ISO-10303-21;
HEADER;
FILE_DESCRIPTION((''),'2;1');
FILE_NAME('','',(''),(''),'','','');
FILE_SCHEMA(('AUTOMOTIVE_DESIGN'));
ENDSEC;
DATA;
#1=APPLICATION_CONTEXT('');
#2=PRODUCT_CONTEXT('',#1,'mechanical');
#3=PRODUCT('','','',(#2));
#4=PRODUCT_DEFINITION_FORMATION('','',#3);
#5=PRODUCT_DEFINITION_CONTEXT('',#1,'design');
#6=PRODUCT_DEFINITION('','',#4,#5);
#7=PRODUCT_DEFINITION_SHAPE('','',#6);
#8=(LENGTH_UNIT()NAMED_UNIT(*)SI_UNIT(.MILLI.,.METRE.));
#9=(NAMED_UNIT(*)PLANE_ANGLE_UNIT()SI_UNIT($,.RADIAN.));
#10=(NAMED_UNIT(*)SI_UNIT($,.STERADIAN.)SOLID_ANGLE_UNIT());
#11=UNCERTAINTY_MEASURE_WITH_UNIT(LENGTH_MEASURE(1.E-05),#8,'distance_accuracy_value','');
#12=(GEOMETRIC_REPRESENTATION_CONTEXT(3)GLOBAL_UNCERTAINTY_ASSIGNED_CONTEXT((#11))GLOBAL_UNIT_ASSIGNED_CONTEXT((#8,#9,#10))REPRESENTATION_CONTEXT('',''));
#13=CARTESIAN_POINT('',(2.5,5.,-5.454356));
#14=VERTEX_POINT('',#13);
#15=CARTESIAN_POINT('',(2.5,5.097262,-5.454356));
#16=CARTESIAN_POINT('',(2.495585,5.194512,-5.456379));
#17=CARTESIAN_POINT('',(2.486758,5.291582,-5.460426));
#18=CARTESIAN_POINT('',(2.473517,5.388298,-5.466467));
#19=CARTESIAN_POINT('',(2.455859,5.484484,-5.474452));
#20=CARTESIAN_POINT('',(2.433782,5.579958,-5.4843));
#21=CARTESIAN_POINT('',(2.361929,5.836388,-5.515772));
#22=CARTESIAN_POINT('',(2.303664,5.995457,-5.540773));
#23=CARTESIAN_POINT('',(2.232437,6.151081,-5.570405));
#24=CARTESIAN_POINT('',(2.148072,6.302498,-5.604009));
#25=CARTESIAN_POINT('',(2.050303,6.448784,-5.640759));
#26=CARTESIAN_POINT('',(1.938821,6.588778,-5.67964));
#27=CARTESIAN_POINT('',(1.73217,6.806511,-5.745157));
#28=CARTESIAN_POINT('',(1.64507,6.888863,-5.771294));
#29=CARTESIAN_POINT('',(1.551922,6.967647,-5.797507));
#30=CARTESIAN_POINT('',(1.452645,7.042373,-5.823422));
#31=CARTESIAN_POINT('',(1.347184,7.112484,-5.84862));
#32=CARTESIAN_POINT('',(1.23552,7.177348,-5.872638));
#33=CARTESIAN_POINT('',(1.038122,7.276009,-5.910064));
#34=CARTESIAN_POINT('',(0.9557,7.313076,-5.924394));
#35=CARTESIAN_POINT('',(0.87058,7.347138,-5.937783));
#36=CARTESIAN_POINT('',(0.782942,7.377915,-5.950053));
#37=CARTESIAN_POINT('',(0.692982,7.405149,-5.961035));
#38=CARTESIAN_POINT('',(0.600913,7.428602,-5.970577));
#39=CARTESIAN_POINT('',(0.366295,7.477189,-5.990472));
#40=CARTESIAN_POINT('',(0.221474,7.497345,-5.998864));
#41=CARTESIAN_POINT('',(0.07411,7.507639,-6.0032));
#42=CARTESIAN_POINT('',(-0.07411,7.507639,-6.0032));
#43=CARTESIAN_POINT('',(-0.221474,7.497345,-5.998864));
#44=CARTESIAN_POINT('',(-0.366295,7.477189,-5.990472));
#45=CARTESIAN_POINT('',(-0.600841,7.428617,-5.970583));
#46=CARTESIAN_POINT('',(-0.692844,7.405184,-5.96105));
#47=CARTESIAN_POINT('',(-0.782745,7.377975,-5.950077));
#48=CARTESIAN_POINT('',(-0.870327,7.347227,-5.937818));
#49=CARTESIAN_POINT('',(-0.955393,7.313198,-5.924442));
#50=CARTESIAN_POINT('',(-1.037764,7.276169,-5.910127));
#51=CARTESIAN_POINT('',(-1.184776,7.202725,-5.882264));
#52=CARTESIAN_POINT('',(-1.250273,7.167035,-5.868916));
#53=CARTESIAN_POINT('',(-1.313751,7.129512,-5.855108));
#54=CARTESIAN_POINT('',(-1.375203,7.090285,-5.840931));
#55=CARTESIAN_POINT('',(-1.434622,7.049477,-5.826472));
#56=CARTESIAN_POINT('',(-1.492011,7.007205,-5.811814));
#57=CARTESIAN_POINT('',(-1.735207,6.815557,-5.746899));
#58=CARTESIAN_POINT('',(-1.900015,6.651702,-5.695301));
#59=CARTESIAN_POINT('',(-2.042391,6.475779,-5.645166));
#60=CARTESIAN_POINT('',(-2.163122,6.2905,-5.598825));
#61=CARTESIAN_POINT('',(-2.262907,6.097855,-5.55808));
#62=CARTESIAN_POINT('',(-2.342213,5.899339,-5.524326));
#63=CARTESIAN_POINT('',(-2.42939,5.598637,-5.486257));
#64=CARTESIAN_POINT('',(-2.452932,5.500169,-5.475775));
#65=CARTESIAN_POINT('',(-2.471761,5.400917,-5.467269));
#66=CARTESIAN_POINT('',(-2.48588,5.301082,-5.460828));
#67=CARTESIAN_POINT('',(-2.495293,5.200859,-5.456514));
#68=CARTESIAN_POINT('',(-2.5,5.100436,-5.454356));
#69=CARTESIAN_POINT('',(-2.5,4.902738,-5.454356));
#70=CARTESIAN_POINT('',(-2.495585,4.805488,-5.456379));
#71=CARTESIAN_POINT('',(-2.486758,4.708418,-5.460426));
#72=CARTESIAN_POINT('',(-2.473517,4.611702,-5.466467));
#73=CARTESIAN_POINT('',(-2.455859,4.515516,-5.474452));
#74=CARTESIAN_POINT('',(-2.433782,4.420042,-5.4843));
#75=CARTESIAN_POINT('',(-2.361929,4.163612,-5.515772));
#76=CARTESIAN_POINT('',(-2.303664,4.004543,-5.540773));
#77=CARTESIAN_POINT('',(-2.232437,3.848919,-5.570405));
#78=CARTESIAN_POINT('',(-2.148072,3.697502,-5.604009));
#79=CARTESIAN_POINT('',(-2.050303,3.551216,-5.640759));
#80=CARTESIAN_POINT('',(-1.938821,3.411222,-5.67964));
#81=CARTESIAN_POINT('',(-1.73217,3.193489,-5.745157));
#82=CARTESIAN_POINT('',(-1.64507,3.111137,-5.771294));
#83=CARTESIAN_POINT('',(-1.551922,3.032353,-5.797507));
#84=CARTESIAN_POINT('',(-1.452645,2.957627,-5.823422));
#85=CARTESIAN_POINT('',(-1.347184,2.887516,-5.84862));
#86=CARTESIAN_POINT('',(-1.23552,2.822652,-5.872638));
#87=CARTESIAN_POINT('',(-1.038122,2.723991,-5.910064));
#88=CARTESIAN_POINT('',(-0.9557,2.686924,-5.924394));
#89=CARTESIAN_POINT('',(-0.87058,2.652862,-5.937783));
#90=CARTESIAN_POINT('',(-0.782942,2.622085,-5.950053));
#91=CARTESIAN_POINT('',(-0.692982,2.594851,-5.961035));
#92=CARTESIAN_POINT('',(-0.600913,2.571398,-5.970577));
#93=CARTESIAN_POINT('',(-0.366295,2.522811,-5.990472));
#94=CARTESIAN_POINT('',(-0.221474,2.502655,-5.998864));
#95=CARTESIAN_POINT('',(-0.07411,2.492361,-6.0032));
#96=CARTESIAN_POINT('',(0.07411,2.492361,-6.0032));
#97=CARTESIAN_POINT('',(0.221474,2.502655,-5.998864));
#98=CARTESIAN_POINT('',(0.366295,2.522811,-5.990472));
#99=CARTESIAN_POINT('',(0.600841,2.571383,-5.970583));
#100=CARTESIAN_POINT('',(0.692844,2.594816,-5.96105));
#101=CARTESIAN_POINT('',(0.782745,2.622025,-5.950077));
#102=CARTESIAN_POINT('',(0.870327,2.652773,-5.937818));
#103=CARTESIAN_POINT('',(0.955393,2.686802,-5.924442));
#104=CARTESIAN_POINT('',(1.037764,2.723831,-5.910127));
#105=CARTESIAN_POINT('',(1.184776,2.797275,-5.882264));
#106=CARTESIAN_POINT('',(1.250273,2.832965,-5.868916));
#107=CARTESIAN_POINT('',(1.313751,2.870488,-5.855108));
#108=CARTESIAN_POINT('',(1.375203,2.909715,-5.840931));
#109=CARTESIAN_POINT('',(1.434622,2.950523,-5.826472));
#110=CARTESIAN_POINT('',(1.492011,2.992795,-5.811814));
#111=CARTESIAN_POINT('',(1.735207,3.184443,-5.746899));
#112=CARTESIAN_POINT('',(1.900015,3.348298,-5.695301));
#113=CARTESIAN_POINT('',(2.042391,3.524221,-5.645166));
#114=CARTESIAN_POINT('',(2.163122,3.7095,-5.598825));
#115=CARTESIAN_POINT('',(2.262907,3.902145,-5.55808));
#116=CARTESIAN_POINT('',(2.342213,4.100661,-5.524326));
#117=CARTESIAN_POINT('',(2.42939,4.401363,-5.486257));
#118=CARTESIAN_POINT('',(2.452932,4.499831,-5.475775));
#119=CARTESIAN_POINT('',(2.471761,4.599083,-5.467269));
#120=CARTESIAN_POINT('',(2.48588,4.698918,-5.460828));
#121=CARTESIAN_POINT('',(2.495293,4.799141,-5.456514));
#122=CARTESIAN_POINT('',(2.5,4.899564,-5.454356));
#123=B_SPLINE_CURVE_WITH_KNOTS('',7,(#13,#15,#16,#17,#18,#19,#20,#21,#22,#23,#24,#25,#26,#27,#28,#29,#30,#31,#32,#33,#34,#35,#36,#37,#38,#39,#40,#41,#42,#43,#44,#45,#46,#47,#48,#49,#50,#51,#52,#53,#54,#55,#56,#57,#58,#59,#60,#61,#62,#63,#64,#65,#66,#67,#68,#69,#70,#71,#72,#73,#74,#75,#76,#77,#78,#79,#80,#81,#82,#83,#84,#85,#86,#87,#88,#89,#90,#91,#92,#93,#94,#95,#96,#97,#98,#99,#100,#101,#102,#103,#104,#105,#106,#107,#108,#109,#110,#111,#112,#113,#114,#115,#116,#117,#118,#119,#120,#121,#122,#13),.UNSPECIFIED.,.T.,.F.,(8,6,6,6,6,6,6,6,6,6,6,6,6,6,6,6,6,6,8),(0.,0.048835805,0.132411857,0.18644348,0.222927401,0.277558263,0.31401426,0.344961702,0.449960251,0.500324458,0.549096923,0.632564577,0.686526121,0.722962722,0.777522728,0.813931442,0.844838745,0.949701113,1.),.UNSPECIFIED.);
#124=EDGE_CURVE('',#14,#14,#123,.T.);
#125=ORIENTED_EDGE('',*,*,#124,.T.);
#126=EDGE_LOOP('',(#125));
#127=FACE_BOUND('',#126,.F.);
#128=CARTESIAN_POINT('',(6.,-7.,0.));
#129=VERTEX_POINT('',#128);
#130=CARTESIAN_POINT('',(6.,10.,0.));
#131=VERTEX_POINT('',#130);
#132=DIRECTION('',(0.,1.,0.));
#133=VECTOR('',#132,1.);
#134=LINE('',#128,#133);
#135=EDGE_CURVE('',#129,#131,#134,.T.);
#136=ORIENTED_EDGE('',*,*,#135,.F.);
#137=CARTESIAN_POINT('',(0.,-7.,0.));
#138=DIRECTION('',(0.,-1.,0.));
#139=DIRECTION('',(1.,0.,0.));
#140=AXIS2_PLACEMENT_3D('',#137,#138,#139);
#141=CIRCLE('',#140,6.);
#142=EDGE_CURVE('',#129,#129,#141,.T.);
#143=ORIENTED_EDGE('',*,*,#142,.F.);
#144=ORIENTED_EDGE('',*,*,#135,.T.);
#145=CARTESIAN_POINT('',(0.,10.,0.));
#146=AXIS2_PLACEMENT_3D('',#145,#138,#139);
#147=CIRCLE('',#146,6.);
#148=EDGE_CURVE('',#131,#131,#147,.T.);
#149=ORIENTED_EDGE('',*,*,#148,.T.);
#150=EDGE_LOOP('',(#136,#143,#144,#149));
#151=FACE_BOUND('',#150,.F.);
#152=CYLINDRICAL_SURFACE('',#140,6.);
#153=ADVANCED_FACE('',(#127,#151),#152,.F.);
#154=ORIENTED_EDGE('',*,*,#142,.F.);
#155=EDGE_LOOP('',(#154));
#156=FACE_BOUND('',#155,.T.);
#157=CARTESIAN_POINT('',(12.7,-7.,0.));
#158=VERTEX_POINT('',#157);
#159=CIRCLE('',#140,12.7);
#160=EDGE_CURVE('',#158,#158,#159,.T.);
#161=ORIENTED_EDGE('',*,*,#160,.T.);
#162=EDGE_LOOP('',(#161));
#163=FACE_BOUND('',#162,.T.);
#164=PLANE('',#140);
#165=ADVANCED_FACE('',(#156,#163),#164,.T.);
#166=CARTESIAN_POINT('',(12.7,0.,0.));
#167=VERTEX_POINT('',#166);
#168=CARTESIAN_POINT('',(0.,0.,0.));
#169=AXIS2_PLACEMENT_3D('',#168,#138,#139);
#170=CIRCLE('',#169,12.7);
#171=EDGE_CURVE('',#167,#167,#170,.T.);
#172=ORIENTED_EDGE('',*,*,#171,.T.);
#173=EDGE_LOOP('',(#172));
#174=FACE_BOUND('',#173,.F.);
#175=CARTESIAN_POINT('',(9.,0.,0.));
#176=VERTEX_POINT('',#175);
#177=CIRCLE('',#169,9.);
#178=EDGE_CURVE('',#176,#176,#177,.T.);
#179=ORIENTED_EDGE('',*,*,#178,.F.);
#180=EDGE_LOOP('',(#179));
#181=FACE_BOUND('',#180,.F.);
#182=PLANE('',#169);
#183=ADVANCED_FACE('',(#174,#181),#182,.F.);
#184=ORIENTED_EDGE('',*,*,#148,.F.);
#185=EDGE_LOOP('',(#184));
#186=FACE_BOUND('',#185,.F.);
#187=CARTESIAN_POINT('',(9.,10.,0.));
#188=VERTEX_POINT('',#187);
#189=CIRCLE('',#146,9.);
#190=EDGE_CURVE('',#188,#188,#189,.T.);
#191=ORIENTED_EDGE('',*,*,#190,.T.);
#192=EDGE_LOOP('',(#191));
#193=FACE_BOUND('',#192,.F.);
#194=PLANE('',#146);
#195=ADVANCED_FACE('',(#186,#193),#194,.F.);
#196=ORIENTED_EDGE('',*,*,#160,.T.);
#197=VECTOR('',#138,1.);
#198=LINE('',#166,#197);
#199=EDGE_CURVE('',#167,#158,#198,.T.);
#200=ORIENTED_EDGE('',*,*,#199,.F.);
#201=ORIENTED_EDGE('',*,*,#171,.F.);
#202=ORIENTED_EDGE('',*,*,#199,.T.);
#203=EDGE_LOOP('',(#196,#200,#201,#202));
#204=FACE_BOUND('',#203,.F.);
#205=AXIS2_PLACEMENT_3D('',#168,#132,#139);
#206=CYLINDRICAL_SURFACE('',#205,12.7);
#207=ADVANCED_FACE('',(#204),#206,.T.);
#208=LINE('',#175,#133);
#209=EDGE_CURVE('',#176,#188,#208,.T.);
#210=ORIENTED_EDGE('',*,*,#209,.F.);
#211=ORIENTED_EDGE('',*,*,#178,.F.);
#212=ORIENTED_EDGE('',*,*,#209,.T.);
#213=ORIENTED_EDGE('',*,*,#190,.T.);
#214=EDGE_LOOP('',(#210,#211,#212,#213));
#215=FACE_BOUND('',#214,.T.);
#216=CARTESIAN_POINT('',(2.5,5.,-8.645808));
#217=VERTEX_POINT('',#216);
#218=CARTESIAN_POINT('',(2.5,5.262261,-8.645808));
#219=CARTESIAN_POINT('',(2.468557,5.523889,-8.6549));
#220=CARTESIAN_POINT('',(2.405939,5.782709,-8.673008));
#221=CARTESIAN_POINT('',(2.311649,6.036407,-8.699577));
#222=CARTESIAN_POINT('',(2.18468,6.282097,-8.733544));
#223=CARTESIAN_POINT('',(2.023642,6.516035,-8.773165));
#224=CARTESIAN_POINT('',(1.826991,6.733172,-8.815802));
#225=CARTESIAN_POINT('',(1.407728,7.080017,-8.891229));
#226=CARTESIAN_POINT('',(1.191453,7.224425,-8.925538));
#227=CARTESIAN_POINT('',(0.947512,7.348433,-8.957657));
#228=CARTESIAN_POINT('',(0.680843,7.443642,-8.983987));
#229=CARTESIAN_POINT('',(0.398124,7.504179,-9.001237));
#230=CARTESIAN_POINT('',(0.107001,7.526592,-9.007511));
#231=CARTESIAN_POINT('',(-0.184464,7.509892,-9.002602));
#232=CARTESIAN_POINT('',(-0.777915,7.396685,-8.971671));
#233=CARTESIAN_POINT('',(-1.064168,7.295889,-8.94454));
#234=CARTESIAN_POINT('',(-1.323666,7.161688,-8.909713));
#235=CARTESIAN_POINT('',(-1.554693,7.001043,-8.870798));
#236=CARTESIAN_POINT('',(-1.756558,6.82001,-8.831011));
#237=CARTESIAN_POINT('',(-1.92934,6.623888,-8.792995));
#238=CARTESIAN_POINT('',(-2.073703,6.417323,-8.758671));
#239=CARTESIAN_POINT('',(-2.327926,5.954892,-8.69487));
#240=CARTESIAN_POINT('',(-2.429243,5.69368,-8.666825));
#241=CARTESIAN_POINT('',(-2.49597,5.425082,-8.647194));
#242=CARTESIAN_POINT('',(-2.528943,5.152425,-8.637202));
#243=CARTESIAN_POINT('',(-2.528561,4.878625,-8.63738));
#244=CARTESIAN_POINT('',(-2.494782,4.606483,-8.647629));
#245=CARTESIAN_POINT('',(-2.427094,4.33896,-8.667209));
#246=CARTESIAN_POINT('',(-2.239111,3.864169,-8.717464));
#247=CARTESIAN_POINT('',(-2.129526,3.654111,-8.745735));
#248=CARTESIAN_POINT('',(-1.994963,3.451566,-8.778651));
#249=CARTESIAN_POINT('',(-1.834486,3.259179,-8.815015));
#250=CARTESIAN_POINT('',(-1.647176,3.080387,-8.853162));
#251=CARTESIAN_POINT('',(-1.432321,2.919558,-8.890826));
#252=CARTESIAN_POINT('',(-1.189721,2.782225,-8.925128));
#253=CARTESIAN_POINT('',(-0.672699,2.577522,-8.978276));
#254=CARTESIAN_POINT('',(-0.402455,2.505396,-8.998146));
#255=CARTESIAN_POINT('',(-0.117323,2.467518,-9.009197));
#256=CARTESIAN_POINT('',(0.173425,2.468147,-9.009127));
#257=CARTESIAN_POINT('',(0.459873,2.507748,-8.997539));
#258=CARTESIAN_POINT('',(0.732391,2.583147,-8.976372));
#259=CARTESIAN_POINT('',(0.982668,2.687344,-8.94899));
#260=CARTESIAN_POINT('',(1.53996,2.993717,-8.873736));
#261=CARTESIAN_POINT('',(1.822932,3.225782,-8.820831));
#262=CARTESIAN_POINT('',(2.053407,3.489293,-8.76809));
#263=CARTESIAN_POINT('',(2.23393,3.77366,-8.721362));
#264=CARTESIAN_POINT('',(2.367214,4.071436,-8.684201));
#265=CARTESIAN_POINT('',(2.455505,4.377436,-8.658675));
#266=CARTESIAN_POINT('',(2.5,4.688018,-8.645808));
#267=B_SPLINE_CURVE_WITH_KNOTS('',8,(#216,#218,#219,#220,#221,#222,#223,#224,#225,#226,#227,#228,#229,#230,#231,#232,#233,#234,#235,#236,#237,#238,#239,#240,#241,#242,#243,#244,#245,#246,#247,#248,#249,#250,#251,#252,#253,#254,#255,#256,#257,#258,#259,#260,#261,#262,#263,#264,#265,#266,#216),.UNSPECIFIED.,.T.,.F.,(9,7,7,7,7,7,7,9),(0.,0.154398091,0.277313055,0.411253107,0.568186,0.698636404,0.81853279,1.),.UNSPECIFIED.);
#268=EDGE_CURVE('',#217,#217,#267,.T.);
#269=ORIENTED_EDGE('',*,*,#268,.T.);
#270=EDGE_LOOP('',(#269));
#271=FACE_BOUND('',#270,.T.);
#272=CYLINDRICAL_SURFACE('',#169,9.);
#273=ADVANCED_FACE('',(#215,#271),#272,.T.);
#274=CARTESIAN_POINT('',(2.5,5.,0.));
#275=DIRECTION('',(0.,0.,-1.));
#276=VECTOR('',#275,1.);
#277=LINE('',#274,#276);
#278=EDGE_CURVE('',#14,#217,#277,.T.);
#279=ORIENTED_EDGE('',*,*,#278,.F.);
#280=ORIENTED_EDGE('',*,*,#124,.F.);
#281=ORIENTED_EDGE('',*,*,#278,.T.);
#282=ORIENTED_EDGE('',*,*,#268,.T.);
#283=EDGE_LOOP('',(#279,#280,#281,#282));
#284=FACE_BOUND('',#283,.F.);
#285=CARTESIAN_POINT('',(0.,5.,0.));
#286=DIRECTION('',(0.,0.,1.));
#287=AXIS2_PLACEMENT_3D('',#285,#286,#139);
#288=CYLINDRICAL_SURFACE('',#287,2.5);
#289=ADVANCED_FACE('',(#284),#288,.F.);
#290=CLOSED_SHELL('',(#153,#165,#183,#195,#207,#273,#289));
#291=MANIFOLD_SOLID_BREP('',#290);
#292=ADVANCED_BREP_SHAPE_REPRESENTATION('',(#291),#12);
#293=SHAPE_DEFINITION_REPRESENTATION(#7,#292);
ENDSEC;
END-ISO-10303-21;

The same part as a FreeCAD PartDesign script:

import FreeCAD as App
import Part
import Sketcher
from FreeCAD import Vector
Q = App.Units.Quantity

doc = App.newDocument("Part")
params = doc.addObject("Spreadsheet::Sheet", "Params")
for row, (alias, value) in enumerate([
    ("sketch1_diameter", "25.4 mm"),
    ("pad1_length", "7 mm"),
    ("sketch2_diameter", "18 mm"),
    ("pad2_length", "10 mm"),
    ("sketch3_diameter", "12 mm"),
    ("sketch4_diameter", "5 mm"),
], start=1):
    params.set(f"A{row}", alias)
    params.set(f"B{row}", "=" + value)
    params.setAlias(f"B{row}", alias)

body = doc.addObject("PartDesign::Body", "Body")

sketch1 = body.newObject("Sketcher::SketchObject", "Sketch")
sketch1.AttachmentSupport = (doc.getObject("XZ_Plane"), [""])
sketch1.MapMode = "FlatFace"
sketch1.addGeometry(Part.Circle(Vector(0, 0, 0), Vector(0, 0, 1), 13), False)
sketch1.addConstraint(Sketcher.Constraint("Coincident", 0, 3, -1, 1))
sketch1.addConstraint(Sketcher.Constraint("Diameter", 0, Q("25.4 mm")))
sketch1.setExpression("Constraints[1]", "Params.sketch1_diameter")
pad1 = body.newObject("PartDesign::Pad", "Pad")
pad1.Profile = sketch1
pad1.setExpression("Length", "Params.pad1_length")

sketch2 = body.newObject("Sketcher::SketchObject", "Sketch001")
sketch2.AttachmentSupport = (doc.getObject("XZ_Plane"), [""])
sketch2.MapMode = "FlatFace"
sketch2.addGeometry(Part.Circle(Vector(0, 0, 0), Vector(0, 0, 1), 9), False)
sketch2.addConstraint(Sketcher.Constraint("Coincident", 0, 3, -1, 1))
sketch2.addConstraint(Sketcher.Constraint("Diameter", 0, Q("18 mm")))
sketch2.setExpression("Constraints[1]", "Params.sketch2_diameter")
pad2 = body.newObject("PartDesign::Pad", "Pad001")
pad2.Profile = sketch2
pad2.setExpression("Length", "Params.pad2_length")
pad2.Reversed = True

sketch3 = body.newObject("Sketcher::SketchObject", "Sketch002")
sketch3.AttachmentSupport = (doc.getObject("XZ_Plane"), [""])
sketch3.MapMode = "FlatFace"
sketch3.AttachmentOffset = App.Placement(Vector(0, 0, 7), App.Rotation())
sketch3.addGeometry(Part.Circle(Vector(0, 0, 0), Vector(0, 0, 1), 6), False)
sketch3.addConstraint(Sketcher.Constraint("Coincident", 0, 3, -1, 1))
sketch3.addConstraint(Sketcher.Constraint("Diameter", 0, Q("12 mm")))
sketch3.setExpression("Constraints[1]", "Params.sketch3_diameter")
pocket1 = body.newObject("PartDesign::Pocket", "Pocket")
pocket1.Profile = sketch3
pocket1.Type = "ThroughAll"

sketch4 = body.newObject("Sketcher::SketchObject", "Sketch003")
sketch4.AttachmentSupport = (doc.getObject("XY_Plane"), [""])
sketch4.MapMode = "FlatFace"
sketch4.addGeometry(Part.Circle(Vector(0, 5, 0), Vector(0, 0, 1), 2.5), False)
sketch4.addConstraint(Sketcher.Constraint("PointOnObject", 0, 3, -2))
sketch4.addConstraint(Sketcher.Constraint("Diameter", 0, Q("5 mm")))
sketch4.addConstraint(Sketcher.Constraint("DistanceY", -1, 1, 0, 3, Q("5 mm")))
sketch4.setExpression("Constraints[1]", "Params.sketch4_diameter")
pocket2 = body.newObject("PartDesign::Pocket", "Pocket001")
pocket2.Profile = sketch4
pocket2.Type = "ThroughAll"

doc.recompute()
